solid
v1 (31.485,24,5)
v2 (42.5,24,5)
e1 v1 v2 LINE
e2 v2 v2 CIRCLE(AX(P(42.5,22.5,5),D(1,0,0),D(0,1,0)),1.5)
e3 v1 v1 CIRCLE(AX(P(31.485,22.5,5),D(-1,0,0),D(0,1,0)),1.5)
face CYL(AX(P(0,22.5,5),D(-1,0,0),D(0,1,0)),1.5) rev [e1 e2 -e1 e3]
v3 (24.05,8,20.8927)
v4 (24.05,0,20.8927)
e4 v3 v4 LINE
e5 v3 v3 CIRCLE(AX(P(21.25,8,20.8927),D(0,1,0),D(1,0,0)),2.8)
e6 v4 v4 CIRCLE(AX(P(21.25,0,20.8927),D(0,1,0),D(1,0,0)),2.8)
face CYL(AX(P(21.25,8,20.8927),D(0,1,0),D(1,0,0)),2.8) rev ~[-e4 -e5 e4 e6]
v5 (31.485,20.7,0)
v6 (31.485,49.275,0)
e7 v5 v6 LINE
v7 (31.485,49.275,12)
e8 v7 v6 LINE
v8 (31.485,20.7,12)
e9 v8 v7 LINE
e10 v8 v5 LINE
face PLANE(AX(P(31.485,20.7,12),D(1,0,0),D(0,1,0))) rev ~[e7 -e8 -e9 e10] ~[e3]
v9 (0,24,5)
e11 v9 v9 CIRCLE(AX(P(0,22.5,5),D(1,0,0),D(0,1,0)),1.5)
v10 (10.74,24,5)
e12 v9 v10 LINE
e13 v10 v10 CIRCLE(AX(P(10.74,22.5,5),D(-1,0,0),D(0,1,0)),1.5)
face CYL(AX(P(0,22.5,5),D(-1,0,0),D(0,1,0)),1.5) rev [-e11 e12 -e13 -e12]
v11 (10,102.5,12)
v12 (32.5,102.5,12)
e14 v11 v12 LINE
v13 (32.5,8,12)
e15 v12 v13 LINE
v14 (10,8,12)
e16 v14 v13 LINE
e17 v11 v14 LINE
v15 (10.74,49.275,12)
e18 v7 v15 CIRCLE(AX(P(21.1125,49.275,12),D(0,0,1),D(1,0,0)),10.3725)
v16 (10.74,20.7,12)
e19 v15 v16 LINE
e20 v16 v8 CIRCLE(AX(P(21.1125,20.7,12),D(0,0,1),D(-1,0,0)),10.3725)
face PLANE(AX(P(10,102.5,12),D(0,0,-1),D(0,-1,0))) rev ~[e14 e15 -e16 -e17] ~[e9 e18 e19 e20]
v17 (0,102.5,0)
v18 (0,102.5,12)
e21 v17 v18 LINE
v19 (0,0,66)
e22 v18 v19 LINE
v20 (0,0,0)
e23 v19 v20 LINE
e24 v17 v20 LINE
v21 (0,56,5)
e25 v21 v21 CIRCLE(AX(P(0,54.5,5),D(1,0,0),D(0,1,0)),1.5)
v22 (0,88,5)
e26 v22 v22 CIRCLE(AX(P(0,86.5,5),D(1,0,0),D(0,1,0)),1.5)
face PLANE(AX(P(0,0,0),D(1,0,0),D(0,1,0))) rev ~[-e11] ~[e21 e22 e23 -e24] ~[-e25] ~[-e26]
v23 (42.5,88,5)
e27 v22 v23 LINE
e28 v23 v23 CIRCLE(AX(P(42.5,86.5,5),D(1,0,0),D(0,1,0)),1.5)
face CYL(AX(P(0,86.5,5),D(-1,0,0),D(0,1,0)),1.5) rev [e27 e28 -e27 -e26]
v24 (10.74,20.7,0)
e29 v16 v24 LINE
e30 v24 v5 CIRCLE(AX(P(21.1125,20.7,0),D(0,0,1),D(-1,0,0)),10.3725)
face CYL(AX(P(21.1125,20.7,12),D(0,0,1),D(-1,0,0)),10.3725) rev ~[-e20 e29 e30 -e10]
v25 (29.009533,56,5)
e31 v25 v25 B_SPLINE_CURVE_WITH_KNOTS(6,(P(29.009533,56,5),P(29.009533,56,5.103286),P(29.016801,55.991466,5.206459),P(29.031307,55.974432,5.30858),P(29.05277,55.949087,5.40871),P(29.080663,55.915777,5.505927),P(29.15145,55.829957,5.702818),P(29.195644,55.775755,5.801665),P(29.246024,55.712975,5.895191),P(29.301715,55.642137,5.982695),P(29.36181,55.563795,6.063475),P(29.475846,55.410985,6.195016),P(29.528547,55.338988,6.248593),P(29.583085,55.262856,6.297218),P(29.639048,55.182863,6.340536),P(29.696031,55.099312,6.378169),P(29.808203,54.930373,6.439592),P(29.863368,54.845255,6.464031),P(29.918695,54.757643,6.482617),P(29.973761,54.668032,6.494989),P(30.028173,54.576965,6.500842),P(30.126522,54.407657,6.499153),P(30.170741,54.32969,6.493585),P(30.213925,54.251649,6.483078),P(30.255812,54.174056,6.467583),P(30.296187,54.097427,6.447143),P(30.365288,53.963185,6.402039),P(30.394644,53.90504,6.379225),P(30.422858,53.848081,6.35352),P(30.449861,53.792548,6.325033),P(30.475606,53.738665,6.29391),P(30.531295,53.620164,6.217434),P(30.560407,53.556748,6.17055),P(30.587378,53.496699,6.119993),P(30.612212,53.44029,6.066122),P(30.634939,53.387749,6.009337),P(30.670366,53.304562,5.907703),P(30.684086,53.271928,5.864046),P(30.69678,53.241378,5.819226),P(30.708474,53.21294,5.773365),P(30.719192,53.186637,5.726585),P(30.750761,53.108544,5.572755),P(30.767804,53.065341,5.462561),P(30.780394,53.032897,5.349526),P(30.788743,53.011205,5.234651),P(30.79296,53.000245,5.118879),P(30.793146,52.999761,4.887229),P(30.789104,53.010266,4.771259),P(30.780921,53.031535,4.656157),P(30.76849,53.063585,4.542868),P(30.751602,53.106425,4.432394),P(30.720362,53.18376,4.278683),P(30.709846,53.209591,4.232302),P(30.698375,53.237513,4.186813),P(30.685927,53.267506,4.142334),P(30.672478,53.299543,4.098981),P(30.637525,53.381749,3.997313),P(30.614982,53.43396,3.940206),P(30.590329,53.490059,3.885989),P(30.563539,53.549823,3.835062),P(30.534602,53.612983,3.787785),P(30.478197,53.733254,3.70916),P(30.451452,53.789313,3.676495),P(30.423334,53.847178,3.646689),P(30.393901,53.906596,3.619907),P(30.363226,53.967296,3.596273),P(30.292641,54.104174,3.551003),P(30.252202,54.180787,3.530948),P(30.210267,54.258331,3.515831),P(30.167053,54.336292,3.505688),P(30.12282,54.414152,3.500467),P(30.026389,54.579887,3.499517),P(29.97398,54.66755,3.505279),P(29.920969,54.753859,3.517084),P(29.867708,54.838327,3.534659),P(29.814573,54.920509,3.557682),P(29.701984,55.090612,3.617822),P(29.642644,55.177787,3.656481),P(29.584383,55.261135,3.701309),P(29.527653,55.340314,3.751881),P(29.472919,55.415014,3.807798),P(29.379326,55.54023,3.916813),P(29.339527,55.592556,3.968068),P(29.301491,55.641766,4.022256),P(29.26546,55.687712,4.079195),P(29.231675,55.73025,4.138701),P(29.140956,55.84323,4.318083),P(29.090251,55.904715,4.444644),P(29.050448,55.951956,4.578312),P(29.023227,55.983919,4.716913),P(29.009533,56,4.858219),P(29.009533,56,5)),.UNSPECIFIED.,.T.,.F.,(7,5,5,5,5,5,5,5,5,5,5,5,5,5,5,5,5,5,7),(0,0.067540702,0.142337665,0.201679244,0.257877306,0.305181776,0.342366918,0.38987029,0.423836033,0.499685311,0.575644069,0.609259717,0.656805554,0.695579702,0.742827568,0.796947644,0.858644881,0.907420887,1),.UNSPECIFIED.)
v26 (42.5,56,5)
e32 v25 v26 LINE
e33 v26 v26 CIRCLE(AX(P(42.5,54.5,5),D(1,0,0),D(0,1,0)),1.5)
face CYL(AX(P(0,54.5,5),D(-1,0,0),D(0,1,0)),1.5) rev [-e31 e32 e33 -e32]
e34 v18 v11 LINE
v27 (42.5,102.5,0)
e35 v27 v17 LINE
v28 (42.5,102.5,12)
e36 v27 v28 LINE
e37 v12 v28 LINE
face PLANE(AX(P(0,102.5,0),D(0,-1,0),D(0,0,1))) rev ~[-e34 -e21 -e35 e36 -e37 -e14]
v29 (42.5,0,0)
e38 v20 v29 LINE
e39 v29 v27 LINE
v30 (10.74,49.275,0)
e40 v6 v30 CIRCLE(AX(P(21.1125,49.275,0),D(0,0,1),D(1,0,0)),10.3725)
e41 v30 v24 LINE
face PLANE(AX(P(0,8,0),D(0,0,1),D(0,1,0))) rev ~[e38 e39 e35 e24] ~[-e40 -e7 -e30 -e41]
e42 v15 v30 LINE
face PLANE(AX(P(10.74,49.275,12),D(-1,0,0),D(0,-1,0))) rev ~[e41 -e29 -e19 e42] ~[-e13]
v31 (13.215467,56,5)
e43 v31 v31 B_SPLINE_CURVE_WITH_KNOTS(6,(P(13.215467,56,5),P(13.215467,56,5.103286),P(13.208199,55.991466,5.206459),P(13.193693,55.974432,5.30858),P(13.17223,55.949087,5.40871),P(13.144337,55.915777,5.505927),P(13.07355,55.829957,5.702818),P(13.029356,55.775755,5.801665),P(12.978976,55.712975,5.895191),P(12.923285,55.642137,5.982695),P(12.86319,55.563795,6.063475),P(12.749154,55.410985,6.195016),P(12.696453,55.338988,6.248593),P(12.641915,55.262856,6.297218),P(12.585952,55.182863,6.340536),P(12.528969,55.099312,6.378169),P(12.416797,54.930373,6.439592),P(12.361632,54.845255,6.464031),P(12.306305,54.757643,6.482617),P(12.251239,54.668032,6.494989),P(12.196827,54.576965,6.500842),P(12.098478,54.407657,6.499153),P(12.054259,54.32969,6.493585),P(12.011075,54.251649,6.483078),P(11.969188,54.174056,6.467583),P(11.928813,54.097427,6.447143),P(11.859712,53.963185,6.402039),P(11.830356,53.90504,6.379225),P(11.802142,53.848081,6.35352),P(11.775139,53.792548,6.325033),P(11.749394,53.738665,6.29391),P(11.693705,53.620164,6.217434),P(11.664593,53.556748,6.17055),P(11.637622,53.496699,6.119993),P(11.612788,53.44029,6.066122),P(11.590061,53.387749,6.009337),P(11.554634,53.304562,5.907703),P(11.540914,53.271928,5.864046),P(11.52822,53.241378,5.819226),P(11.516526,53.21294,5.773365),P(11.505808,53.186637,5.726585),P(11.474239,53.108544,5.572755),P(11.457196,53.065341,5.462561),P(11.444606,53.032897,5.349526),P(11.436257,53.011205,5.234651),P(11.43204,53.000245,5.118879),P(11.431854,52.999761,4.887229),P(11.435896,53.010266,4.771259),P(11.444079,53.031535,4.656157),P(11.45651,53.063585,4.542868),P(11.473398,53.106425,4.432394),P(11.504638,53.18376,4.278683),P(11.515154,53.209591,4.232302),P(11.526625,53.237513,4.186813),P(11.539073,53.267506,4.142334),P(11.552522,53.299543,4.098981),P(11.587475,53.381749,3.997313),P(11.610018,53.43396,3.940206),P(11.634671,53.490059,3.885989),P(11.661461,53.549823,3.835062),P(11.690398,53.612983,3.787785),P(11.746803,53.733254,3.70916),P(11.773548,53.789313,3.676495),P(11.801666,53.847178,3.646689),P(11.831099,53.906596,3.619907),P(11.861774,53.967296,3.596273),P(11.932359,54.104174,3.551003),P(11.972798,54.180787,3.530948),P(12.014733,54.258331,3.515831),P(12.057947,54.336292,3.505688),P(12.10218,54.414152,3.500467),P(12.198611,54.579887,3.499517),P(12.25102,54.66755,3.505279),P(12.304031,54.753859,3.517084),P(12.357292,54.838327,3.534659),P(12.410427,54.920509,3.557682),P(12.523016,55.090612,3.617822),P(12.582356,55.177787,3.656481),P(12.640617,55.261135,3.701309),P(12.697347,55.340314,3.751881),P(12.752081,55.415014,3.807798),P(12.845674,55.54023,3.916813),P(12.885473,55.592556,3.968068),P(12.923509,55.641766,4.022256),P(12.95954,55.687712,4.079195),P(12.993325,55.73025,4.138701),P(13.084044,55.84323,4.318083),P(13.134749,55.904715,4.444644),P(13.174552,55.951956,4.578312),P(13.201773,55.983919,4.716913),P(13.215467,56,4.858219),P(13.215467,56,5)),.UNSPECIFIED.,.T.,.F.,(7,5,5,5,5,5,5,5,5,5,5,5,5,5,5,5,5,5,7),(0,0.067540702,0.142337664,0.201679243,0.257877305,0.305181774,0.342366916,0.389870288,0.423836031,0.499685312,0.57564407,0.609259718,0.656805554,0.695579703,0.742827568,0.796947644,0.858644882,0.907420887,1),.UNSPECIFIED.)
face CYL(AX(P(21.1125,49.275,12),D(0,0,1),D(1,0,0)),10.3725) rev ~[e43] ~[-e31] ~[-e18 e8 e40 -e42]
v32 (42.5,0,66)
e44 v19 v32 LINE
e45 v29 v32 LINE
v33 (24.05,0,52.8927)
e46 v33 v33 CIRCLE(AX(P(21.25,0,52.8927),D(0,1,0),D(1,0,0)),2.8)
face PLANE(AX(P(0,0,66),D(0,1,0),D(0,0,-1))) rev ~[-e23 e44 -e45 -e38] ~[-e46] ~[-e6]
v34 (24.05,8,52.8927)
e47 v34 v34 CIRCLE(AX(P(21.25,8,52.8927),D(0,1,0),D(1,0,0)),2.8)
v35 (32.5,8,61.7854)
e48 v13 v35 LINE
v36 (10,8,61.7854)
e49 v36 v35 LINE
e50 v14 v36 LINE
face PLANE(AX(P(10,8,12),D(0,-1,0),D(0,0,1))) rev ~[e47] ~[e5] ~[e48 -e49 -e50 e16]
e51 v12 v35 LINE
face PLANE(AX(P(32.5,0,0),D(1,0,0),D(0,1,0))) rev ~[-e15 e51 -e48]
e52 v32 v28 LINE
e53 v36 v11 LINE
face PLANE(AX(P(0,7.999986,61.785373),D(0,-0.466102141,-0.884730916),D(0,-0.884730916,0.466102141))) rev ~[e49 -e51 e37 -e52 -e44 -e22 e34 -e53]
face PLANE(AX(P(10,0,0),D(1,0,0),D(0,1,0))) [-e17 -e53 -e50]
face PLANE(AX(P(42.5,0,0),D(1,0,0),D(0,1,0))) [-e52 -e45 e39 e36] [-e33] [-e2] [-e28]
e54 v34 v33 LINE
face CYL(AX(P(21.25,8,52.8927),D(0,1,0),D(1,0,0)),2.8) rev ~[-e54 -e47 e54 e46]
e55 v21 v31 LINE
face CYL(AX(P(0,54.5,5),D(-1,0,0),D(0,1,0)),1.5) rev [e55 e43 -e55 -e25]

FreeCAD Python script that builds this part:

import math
import FreeCAD as App
import Part
import Sketcher

V = App.Vector
Q = App.Units.Quantity

doc = App.newDocument("Part")
body = doc.addObject("PartDesign::Body", "Body")

sketch1 = body.newObject("Sketcher::SketchObject", "Sketch")
sketch1.AttachmentSupport = (doc.getObject("YZ_Plane"), [""])
sketch1.MapMode = "FlatFace"
sketch1.addGeometry([
    Part.LineSegment(V(0, 66, 0), V(0, 0, 0)),
    Part.LineSegment(V(0, 0, 0), V(102.5, 0, 0)),
    Part.LineSegment(V(102.5, 0, 0), V(102.5, 12, 0)),
    Part.LineSegment(V(102.5, 12, 0), V(0, 66, 0)),
    Part.Circle(V(86.5, 5, 0), V(0, 0, 1), 1.5),
    Part.Circle(V(54.5, 5, 0), V(0, 0, 1), 1.5),
    Part.Circle(V(22.5, 5, 0), V(0, 0, 1), 1.5),
], False)
sketch1.addConstraint([
    Sketcher.Constraint("Coincident", 0, 2, 1, 1),
    Sketcher.Constraint("Coincident", 1, 2, 2, 1),
    Sketcher.Constraint("Coincident", 2, 2, 3, 1),
    Sketcher.Constraint("Coincident", 3, 2, 0, 1),
    Sketcher.Constraint("Vertical", 0),
    Sketcher.Constraint("Horizontal", 1),
    Sketcher.Constraint("Vertical", 2),
    Sketcher.Constraint("Coincident", 0, 2, -1, 1),
    Sketcher.Constraint("Equal", 4, 5),
    Sketcher.Constraint("Equal", 5, 6),
    Sketcher.Constraint("Horizontal", 4, 3, 5, 3),
    Sketcher.Constraint("Horizontal", 5, 3, 6, 3),
    Sketcher.Constraint("Diameter", 4, Q("3 mm")),
    Sketcher.Constraint("DistanceY", 0, 2, 0, 1, Q("66 mm")),
    Sketcher.Constraint("DistanceY", 2, 1, 2, 2, Q("12 mm")),
    Sketcher.Constraint("DistanceY", -1, 1, 4, 3, Q("5 mm")),
    Sketcher.Constraint("DistanceX", 4, 3, 1, 2, Q("16 mm")),
    Sketcher.Constraint("DistanceX", 1, 1, 1, 2, Q("102.5 mm")),
    Sketcher.Constraint("DistanceX", 5, 3, 4, 3, Q("32 mm")),
    Sketcher.Constraint("DistanceX", 6, 3, 5, 3, Q("32 mm")),
])
pad1 = body.newObject("PartDesign::Pad", "Pad")
pad1.Profile = sketch1
pad1.Length = 10

sketch2 = body.newObject("Sketcher::SketchObject", "Sketch001")
sketch2.AttachmentSupport = (doc.getObject("YZ_Plane"), [""])
sketch2.MapMode = "FlatFace"
sketch2.AttachmentOffset = App.Placement(V(0, 0, 10), App.Rotation())
sketch2.addGeometry([
    Part.LineSegment(V(7.999986, 61.785373, 0), V(0, 66, 0)),
    Part.LineSegment(V(0, 66, 0), V(0, 0, 0)),
    Part.LineSegment(V(0, 0, 0), V(102.5, 0, 0)),
    Part.LineSegment(V(102.5, 0, 0), V(102.5, 12, 0)),
    Part.LineSegment(V(102.5, 12, 0), V(8, 12, 0)),
    Part.LineSegment(V(8, 12, 0), V(8, 61.7854, 0)),
    Part.Circle(V(86.5, 5, 0), V(0, 0, 1), 1.5),
    Part.Circle(V(22.5, 5, 0), V(0, 0, 1), 1.5),
    Part.Circle(V(54.5, 5, 0), V(0, 0, 1), 1.5),
], False)
sketch2.addConstraint([
    Sketcher.Constraint("Coincident", 0, 2, 1, 1),
    Sketcher.Constraint("Coincident", 1, 2, 2, 1),
    Sketcher.Constraint("Coincident", 2, 2, 3, 1),
    Sketcher.Constraint("Coincident", 3, 2, 4, 1),
    Sketcher.Constraint("Coincident", 4, 2, 5, 1),
    Sketcher.Constraint("Coincident", 5, 2, 0, 1),
    Sketcher.Constraint("Vertical", 1),
    Sketcher.Constraint("Horizontal", 2),
    Sketcher.Constraint("Vertical", 3),
    Sketcher.Constraint("Horizontal", 4),
    Sketcher.Constraint("Vertical", 5),
    Sketcher.Constraint("Coincident", 1, 2, -1, 1),
    Sketcher.Constraint("Equal", 6, 7),
    Sketcher.Constraint("Equal", 7, 8),
    Sketcher.Constraint("Horizontal", 6, 3, 7, 3),
    Sketcher.Constraint("Horizontal", 7, 3, 8, 3),
    Sketcher.Constraint("Diameter", 6, Q("3 mm")),
    Sketcher.Constraint("DistanceY", 1, 2, 1, 1, Q("66 mm")),
    Sketcher.Constraint("DistanceY", 3, 1, 3, 2, Q("12 mm")),
    Sketcher.Constraint("DistanceY", -1, 1, 6, 3, Q("5 mm")),
    Sketcher.Constraint("DistanceX", -1, 1, 4, 2, Q("8 mm")),
    Sketcher.Constraint("DistanceX", 6, 3, 2, 2, Q("16 mm")),
    Sketcher.Constraint("DistanceX", 2, 1, 2, 2, Q("102.5 mm")),
    Sketcher.Constraint("DistanceX", 7, 3, 6, 3, Q("64 mm")),
    Sketcher.Constraint("DistanceX", 8, 3, 6, 3, Q("32 mm")),
    Sketcher.Constraint("DistanceY", 5, 1, 5, 2, Q("49.7854 mm")),
])
pad2 = body.newObject("PartDesign::Pad", "Pad001")
pad2.Profile = sketch2
pad2.Length = 22.5

sketch3 = body.newObject("Sketcher::SketchObject", "Sketch002")
sketch3.AttachmentSupport = (doc.getObject("YZ_Plane"), [""])
sketch3.MapMode = "FlatFace"
sketch3.AttachmentOffset = App.Placement(V(0, 0, 32.5), App.Rotation())
sketch3.addGeometry([
    Part.LineSegment(V(0, 66, 0), V(0, 0, 0)),
    Part.LineSegment(V(0, 0, 0), V(102.5, 0, 0)),
    Part.LineSegment(V(102.5, 0, 0), V(102.5, 12, 0)),
    Part.LineSegment(V(102.5, 12, 0), V(0, 66, 0)),
    Part.Circle(V(86.5, 5, 0), V(0, 0, 1), 1.5),
    Part.Circle(V(54.5, 5, 0), V(0, 0, 1), 1.5),
    Part.Circle(V(22.5, 5, 0), V(0, 0, 1), 1.5),
], False)
sketch3.addConstraint([
    Sketcher.Constraint("Coincident", 0, 2, 1, 1),
    Sketcher.Constraint("Coincident", 1, 2, 2, 1),
    Sketcher.Constraint("Coincident", 2, 2, 3, 1),
    Sketcher.Constraint("Coincident", 3, 2, 0, 1),
    Sketcher.Constraint("Vertical", 0),
    Sketcher.Constraint("Horizontal", 1),
    Sketcher.Constraint("Vertical", 2),
    Sketcher.Constraint("Coincident", 0, 2, -1, 1),
    Sketcher.Constraint("Equal", 4, 5),
    Sketcher.Constraint("Equal", 5, 6),
    Sketcher.Constraint("Horizontal", 4, 3, 5, 3),
    Sketcher.Constraint("Horizontal", 5, 3, 6, 3),
    Sketcher.Constraint("Diameter", 4, Q("3 mm")),
    Sketcher.Constraint("DistanceY", 0, 2, 0, 1, Q("66 mm")),
    Sketcher.Constraint("DistanceY", 2, 1, 2, 2, Q("12 mm")),
    Sketcher.Constraint("DistanceY", -1, 1, 4, 3, Q("5 mm")),
    Sketcher.Constraint("DistanceX", 4, 3, 1, 2, Q("16 mm")),
    Sketcher.Constraint("DistanceX", 1, 1, 1, 2, Q("102.5 mm")),
    Sketcher.Constraint("DistanceX", 5, 3, 4, 3, Q("32 mm")),
    Sketcher.Constraint("DistanceX", 6, 3, 5, 3, Q("32 mm")),
])
pad3 = body.newObject("PartDesign::Pad", "Pad002")
pad3.Profile = sketch3
pad3.Length = 10

sketch4 = body.newObject("Sketcher::SketchObject", "Sketch003")
sketch4.AttachmentSupport = (doc.getObject("XZ_Plane"), [""])
sketch4.MapMode = "FlatFace"
sketch4.AttachmentOffset = App.Placement(V(0, 0, -8), App.Rotation())
sketch4.addGeometry([
    Part.Circle(V(21.25, 20.8927, 0), V(0, 0, 1), 2.8),
    Part.Circle(V(21.25, 52.8927, 0), V(0, 0, 1), 2.8),
], False)
sketch4.addConstraint([
    Sketcher.Constraint("Equal", 0, 1),
    Sketcher.Constraint("Vertical", 0, 3, 1, 3),
    Sketcher.Constraint("Diameter", 0, Q("5.6 mm")),
    Sketcher.Constraint("DistanceY", 0, 3, 1, 3, Q("32 mm")),
    Sketcher.Constraint("DistanceX", -1, 1, 0, 3, Q("21.25 mm")),
    Sketcher.Constraint("DistanceY", -1, 1, 0, 3, Q("20.8927 mm")),
])
pocket1 = body.newObject("PartDesign::Pocket", "Pocket")
pocket1.Profile = sketch4
pocket1.Length = 22.5
pocket1.Reversed = True

sketch5 = body.newObject("Sketcher::SketchObject", "Sketch004")
sketch5.AttachmentSupport = (doc.getObject("XY_Plane"), [""])
sketch5.MapMode = "FlatFace"
sketch5.AttachmentOffset = App.Placement(V(0, 0, 12), App.Rotation())
sketch5.addGeometry([
    Part.ArcOfCircle(Part.Circle(V(21.1125, 49.275, 0), V(0, 0, 1), 10.3725), math.radians(0), math.radians(180)),
    Part.LineSegment(V(10.74, 49.275, 0), V(10.74, 20.7, 0)),
    Part.ArcOfCircle(Part.Circle(V(21.1125, 20.7, 0), V(0, 0, 1), 10.3725), math.radians(180), math.radians(360)),
    Part.LineSegment(V(31.485, 20.7, 0), V(31.485, 49.275, 0)),
], False)
sketch5.addConstraint([
    Sketcher.Constraint("Tangent", 0, 2, 1, 1),
    Sketcher.Constraint("Tangent", 1, 2, 2, 1),
    Sketcher.Constraint("Tangent", 2, 2, 3, 1),
    Sketcher.Constraint("Tangent", 3, 2, 0, 1),
    Sketcher.Constraint("Vertical", 1),
    Sketcher.Constraint("Vertical", 3),
    Sketcher.Constraint("DistanceY", -1, 1, 2, 3, Q("20.7 mm")),
    Sketcher.Constraint("Radius", 0, Q("10.3725 mm")),
    Sketcher.Constraint("DistanceY", 1, 2, 1, 1, Q("28.575 mm")),
    Sketcher.Constraint("DistanceX", -1, 1, 0, 2, Q("10.74 mm")),
])
pocket2 = body.newObject("PartDesign::Pocket", "Pocket001")
pocket2.Profile = sketch5
pocket2.Type = "ThroughAll"

doc.recompute()
